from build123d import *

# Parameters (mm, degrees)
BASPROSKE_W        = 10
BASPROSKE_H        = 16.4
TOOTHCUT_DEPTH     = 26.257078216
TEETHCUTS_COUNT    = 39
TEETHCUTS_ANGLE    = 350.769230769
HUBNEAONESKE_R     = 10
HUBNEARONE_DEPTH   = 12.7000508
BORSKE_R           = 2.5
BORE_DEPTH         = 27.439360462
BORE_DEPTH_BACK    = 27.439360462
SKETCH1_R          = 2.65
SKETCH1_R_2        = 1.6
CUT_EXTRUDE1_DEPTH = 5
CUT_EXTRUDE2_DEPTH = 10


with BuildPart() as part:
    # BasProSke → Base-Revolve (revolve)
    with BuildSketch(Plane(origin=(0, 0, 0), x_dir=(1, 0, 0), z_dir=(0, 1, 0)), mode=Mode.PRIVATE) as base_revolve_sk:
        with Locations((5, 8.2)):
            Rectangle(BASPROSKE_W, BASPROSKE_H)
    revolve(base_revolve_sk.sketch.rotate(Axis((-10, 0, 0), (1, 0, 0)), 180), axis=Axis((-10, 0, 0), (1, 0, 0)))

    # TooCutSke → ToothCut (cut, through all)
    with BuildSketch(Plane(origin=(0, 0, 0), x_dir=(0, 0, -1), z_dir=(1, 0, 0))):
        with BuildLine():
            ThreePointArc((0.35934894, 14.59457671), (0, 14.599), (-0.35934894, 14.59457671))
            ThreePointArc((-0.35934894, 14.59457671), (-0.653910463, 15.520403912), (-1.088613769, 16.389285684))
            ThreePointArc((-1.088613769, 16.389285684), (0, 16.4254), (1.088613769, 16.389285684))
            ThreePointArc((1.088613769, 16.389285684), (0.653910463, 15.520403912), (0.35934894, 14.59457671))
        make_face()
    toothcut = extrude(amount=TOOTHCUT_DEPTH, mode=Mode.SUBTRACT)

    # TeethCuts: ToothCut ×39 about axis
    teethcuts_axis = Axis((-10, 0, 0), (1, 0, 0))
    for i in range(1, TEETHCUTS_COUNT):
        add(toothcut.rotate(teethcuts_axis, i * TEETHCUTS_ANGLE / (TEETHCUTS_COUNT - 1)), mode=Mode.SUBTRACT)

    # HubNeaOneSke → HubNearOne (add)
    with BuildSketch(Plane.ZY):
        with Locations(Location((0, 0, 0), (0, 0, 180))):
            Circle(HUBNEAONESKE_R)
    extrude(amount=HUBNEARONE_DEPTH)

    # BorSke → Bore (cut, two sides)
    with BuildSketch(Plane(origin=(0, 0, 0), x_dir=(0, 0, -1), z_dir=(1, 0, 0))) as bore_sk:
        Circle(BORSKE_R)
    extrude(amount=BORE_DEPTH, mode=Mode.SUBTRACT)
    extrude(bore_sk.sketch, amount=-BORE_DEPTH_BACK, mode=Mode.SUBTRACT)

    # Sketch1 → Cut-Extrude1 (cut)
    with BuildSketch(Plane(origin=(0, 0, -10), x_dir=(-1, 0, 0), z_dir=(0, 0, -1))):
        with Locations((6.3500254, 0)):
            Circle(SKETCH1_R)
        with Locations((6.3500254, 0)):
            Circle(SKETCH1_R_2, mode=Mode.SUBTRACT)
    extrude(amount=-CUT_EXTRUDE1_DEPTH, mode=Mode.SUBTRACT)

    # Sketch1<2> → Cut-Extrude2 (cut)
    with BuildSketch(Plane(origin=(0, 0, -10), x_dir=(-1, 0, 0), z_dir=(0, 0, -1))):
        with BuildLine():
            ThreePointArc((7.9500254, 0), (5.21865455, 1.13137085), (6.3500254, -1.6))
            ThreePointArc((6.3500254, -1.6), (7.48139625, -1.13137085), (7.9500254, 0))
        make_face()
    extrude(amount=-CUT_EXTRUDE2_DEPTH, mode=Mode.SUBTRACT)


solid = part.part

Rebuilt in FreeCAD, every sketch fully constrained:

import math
import FreeCAD as App
import Part
import Sketcher
Q = App.Units.Quantity

doc = App.newDocument("Part")
body = doc.addObject("PartDesign::Body", "Body")

# Sketch on XZ plane
sketch1 = doc.addObject("Sketcher::SketchObject", "Sketch")
body.addObject(sketch1)
sketch1.AttachmentSupport = (doc.XZ_Plane, [""])
sketch1.MapMode = "FlatFace"
sketch1.addGeometry([
    Part.LineSegment(App.Vector(0, -16, 0), App.Vector(0, 0, 0)),
    Part.LineSegment(App.Vector(0, 0, 0), App.Vector(10, 0, 0)),
    Part.LineSegment(App.Vector(10, 0, 0), App.Vector(10, -16, 0)),
    Part.LineSegment(App.Vector(10, -16, 0), App.Vector(0, -16, 0)),
], False)
sketch1.addConstraint([
    Sketcher.Constraint("Coincident", 0, 2, 1, 1),
    Sketcher.Constraint("Coincident", 1, 2, 2, 1),
    Sketcher.Constraint("Coincident", 2, 2, 3, 1),
    Sketcher.Constraint("Coincident", 3, 2, 0, 1),
    Sketcher.Constraint("Vertical", 0),
    Sketcher.Constraint("Horizontal", 1),
    Sketcher.Constraint("Vertical", 2),
    Sketcher.Constraint("Horizontal", 3),
    Sketcher.Constraint("Coincident", 0, 2, -1, 1),
    Sketcher.Constraint("DistanceX", 1, 1, 1, 2, Q("10 mm")),
    Sketcher.Constraint("DistanceY", 0, 1, 0, 2, Q("16.4 mm")),
])
revolution = doc.addObject("PartDesign::Revolution", "Revolution")
body.addObject(revolution)
revolution.Profile = sketch1
revolution.ReferenceAxis = (sketch1, ["H_Axis"])
revolution.Angle = 360

# Sketch on YZ plane
sketch2 = doc.addObject("Sketcher::SketchObject", "Sketch001")
body.addObject(sketch2)
sketch2.AttachmentSupport = (doc.YZ_Plane, [""])
sketch2.MapMode = "FlatFace"
sketch2.addGeometry([
    Part.ArcOfCircle(Part.Circle(App.Vector(0, 0, 0), App.Vector(0, 0, 1), 14.6), math.radians(-1.41), math.radians(1.41)),
    Part.ArcOfCircle(Part.Circle(App.Vector(13.2, -6.4, 0), App.Vector(0, 0, 1), 6.2), math.radians(58.96), math.radians(76.82)),
    Part.ArcOfCircle(Part.Circle(App.Vector(0, 0, 0), App.Vector(0, 0, 1), 16.4), math.radians(-3.8), math.radians(3.8)),
    Part.ArcOfCircle(Part.Circle(App.Vector(13.2, 6.4, 0), App.Vector(0, 0, 1), 6.2), math.radians(-76.82), math.radians(-58.96)),
], False)
sketch2.addConstraint([
    Sketcher.Constraint("Coincident", 0, 1, 1, 2),
    Sketcher.Constraint("Coincident", 1, 1, 2, 1),
    Sketcher.Constraint("Coincident", 2, 2, 3, 2),
    Sketcher.Constraint("Coincident", 3, 1, 0, 2),
    Sketcher.Constraint("Coincident", 0, 3, -1, 1),
    Sketcher.Constraint("Coincident", 2, 3, -1, 1),
    Sketcher.Constraint("Equal", 1, 3),
    Sketcher.Constraint("Symmetric", 1, 3, 3, 3, -1),
    Sketcher.Constraint("Radius", 1, Q("6.24 mm")),
    Sketcher.Constraint("Radius", 0, Q("14.599001 mm")),
    Sketcher.Constraint("Radius", 2, Q("16.4254 mm")),
    Sketcher.Constraint("DistanceY", 0, 1, -1, 1, Q("0.359349 mm")),
    Sketcher.Constraint("DistanceX", 1, 3, 0, 1, Q("1.42322 mm")),
])
pocket1 = doc.addObject("PartDesign::Pocket", "Pocket")
body.addObject(pocket1)
pocket1.Profile = sketch2
pocket1.Type = "ThroughAll"
pocket1.Reversed = True
doc.recompute()

polarpattern = doc.addObject("PartDesign::PolarPattern", "PolarPattern")
body.addObject(polarpattern)
polarpattern.Originals = [pocket1]
polarpattern.Axis = (doc.X_Axis, [""])
polarpattern.Angle = 360
polarpattern.Occurrences = 39
body.Tip = polarpattern

# Sketch on YZ plane
sketch3 = doc.addObject("Sketcher::SketchObject", "Sketch002")
body.addObject(sketch3)
sketch3.AttachmentSupport = (doc.YZ_Plane, [""])
sketch3.MapMode = "FlatFace"
sketch3.addGeometry(Part.Circle(App.Vector(0, 0, 0), App.Vector(0, 0, 1), 10), False)
sketch3.addConstraint([
    Sketcher.Constraint("Coincident", 0, 3, -1, 1),
    Sketcher.Constraint("Diameter", 0, Q("20 mm")),
])
pad1 = doc.addObject("PartDesign::Pad", "Pad")
body.addObject(pad1)
pad1.Profile = sketch3
pad1.Length = 12.700051
pad1.Reversed = True

# Sketch on YZ plane
sketch4 = doc.addObject("Sketcher::SketchObject", "Sketch003")
body.addObject(sketch4)
sketch4.AttachmentSupport = (doc.YZ_Plane, [""])
sketch4.MapMode = "FlatFace"
sketch4.addGeometry(Part.Circle(App.Vector(0, 0, 0), App.Vector(0, 0, 1), 2.5), False)
sketch4.addConstraint([
    Sketcher.Constraint("Coincident", 0, 3, -1, 1),
    Sketcher.Constraint("Diameter", 0, Q("5 mm")),
])
pocket2 = doc.addObject("PartDesign::Pocket", "Pocket001")
body.addObject(pocket2)
pocket2.Profile = sketch4
pocket2.Type = "ThroughAll"
pocket2.Midplane = True

# Sketch on XY plane
sketch5 = doc.addObject("Sketcher::SketchObject", "Sketch004")
body.addObject(sketch5)
sketch5.AttachmentSupport = (doc.XY_Plane, [""])
sketch5.MapMode = "FlatFace"
sketch5.AttachmentOffset = App.Placement(App.Vector(0, 0, -10), App.Rotation())
sketch5.addGeometry([
    Part.Circle(App.Vector(-6.4, 0, 0), App.Vector(0, 0, 1), 2.6),
    Part.Circle(App.Vector(-6.4, 0, 0), App.Vector(0, 0, 1), 1.6),
], False)
sketch5.addConstraint([
    Sketcher.Constraint("Coincident", 1, 3, 0, 3),
    Sketcher.Constraint("PointOnObject", 0, 3, -1),
    Sketcher.Constraint("Diameter", 0, Q("5.3 mm")),
    Sketcher.Constraint("Diameter", 1, Q("3.2 mm")),
    Sketcher.Constraint("DistanceX", 0, 3, -1, 1, Q("6.350025 mm")),
])
pocket3 = doc.addObject("PartDesign::Pocket", "Pocket002")
body.addObject(pocket3)
pocket3.Profile = sketch5
pocket3.Length = 5
pocket3.Reversed = True

# Sketch on XY plane
sketch6 = doc.addObject("Sketcher::SketchObject", "Sketch005")
body.addObject(sketch6)
sketch6.AttachmentSupport = (doc.XY_Plane, [""])
sketch6.MapMode = "FlatFace"
sketch6.AttachmentOffset = App.Placement(App.Vector(0, 0, -10), App.Rotation())
sketch6.addGeometry([
    Part.ArcOfCircle(Part.Circle(App.Vector(-6.4, 0, 0), App.Vector(0, 0, 1), 1.6), math.radians(-90), math.radians(180)),
    Part.ArcOfCircle(Part.Circle(App.Vector(-6.4, 0, 0), App.Vector(0, 0, 1), 1.6), math.radians(180), math.radians(270)),
], False)
sketch6.addConstraint([
    Sketcher.Constraint("Tangent", 0, 1, 1, 2),
    Sketcher.Constraint("Coincident", 1, 1, 0, 2),
    Sketcher.Constraint("PointOnObject", 0, 3, -1),
    Sketcher.Constraint("PointOnObject", 1, 1, -1),
    Sketcher.Constraint("Vertical", 1, 3, 0, 1),
    Sketcher.Constraint("Radius", 0, Q("1.6 mm")),
    Sketcher.Constraint("DistanceX", 0, 3, -1, 1, Q("6.350025 mm")),
])
pocket4 = doc.addObject("PartDesign::Pocket", "Pocket003")
body.addObject(pocket4)
pocket4.Profile = sketch6
pocket4.Length = 10
pocket4.Reversed = True

doc.recompute()
